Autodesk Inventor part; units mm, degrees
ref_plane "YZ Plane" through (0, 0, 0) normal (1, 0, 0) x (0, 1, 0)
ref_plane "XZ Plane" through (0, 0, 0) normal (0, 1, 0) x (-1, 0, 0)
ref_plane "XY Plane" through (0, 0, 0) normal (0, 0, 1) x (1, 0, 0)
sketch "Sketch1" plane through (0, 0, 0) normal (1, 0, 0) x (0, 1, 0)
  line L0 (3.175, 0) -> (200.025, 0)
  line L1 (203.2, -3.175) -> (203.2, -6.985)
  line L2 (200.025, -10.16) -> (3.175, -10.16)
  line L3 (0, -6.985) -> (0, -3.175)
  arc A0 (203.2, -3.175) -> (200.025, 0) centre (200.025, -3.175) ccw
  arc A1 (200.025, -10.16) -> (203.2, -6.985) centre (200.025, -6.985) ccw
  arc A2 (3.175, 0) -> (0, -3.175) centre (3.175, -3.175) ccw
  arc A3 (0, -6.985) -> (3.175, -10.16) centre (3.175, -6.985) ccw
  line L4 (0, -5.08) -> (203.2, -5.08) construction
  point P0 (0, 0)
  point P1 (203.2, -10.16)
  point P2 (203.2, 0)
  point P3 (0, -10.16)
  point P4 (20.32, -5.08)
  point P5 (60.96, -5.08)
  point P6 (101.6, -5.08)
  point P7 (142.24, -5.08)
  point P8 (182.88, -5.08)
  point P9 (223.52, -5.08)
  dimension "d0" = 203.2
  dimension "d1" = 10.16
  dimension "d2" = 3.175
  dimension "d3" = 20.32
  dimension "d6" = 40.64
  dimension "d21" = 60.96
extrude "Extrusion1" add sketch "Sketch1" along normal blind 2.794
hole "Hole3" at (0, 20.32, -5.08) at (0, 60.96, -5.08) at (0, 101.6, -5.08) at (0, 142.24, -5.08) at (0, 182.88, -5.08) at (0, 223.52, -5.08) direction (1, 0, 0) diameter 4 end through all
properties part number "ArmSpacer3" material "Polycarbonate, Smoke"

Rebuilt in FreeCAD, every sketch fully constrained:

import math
import FreeCAD as App
import Part
import Sketcher
Q = App.Units.Quantity

doc = App.newDocument("Part")
body = doc.addObject("PartDesign::Body", "Body")

# Sketch on YZ plane
sketch1 = body.newObject("Sketcher::SketchObject", "Sketch")
sketch1.AttachmentSupport = (doc.getObject("YZ_Plane"), [""])
sketch1.MapMode = "FlatFace"
sketch1.addGeometry([
    Part.LineSegment(App.Vector(200, 0, 0), App.Vector(3.2, 0, 0)),  # 0
    Part.ArcOfCircle(Part.Circle(App.Vector(3.2, -3.2, 0), App.Vector(0, 0, 1), 3.2), math.radians(90), math.radians(180)),  # 1
    Part.LineSegment(App.Vector(0, -3.2, 0), App.Vector(0, -7, 0)),  # 2
    Part.ArcOfCircle(Part.Circle(App.Vector(3.2, -7, 0), App.Vector(0, 0, 1), 3.2), math.radians(180), math.radians(270)),  # 3
    Part.LineSegment(App.Vector(3.2, -10.2, 0), App.Vector(200, -10.2, 0)),  # 4
    Part.ArcOfCircle(Part.Circle(App.Vector(200, -7, 0), App.Vector(0, 0, 1), 3.2), math.radians(-90), math.radians(0)),  # 5
    Part.LineSegment(App.Vector(203.2, -7, 0), App.Vector(203.2, -3.2, 0)),  # 6
    Part.ArcOfCircle(Part.Circle(App.Vector(200, -3.2, 0), App.Vector(0, 0, 1), 3.2), math.radians(0), math.radians(90)),  # 7
], False)
sketch1.addConstraint([
    Sketcher.Constraint("Tangent", 0, 2, 1, 1),
    Sketcher.Constraint("Tangent", 1, 2, 2, 1),
    Sketcher.Constraint("Tangent", 2, 2, 3, 1),
    Sketcher.Constraint("Tangent", 3, 2, 4, 1),
    Sketcher.Constraint("Tangent", 4, 2, 5, 1),
    Sketcher.Constraint("Tangent", 5, 2, 6, 1),
    Sketcher.Constraint("Tangent", 6, 2, 7, 1),
    Sketcher.Constraint("Tangent", 7, 2, 0, 1),
    Sketcher.Constraint("Horizontal", 0),
    Sketcher.Constraint("Vertical", 2),
    Sketcher.Constraint("Horizontal", 4),
    Sketcher.Constraint("Vertical", 6),
    Sketcher.Constraint("Equal", 1, 3),
    Sketcher.Constraint("Equal", 3, 5),
    Sketcher.Constraint("Equal", 5, 7),
    Sketcher.Constraint("PointOnObject", 0, 2, -1),
    Sketcher.Constraint("PointOnObject", 1, 2, -2),
    Sketcher.Constraint("DistanceX", -1, 1, 5, 2, Q("8 in")),
    Sketcher.Constraint("Radius", 1, Q("0.125 in")),
    Sketcher.Constraint("DistanceY", 3, 2, -1, 1, Q("0.4 in")),
])
pad1 = body.newObject("PartDesign::Pad", "Pad")
pad1.Profile = sketch1
pad1.Length = Q("0.11 in")

# Sketch on YZ plane
sketch2 = body.newObject("Sketcher::SketchObject", "Sketch001")
sketch2.AttachmentSupport = (doc.getObject("YZ_Plane"), [""])
sketch2.MapMode = "FlatFace"
sketch2.addGeometry([
    Part.Circle(App.Vector(20.3, -5.1, 0), App.Vector(0, 0, 1), 2),  # 0
    Part.Circle(App.Vector(61, -5.1, 0), App.Vector(0, 0, 1), 2),  # 1
    Part.Circle(App.Vector(101.6, -5.1, 0), App.Vector(0, 0, 1), 2),  # 2
    Part.Circle(App.Vector(142.2, -5.1, 0), App.Vector(0, 0, 1), 2),  # 3
    Part.Circle(App.Vector(182.9, -5.1, 0), App.Vector(0, 0, 1), 2),  # 4
    Part.Circle(App.Vector(223.5, -5.1, 0), App.Vector(0, 0, 1), 2),  # 5
], False)
sketch2.addConstraint([
    Sketcher.Constraint("Equal", 0, 1),
    Sketcher.Constraint("Equal", 1, 2),
    Sketcher.Constraint("Equal", 2, 3),
    Sketcher.Constraint("Equal", 3, 4),
    Sketcher.Constraint("Equal", 4, 5),
    Sketcher.Constraint("Horizontal", 0, 3, 1, 3),
    Sketcher.Constraint("Horizontal", 1, 3, 2, 3),
    Sketcher.Constraint("Horizontal", 2, 3, 3, 3),
    Sketcher.Constraint("Horizontal", 3, 3, 4, 3),
    Sketcher.Constraint("Horizontal", 4, 3, 5, 3),
    Sketcher.Constraint("DistanceX", -1, 1, 2, 3, Q("4 in")),
    Sketcher.Constraint("DistanceX", 0, 3, 5, 3, Q("8 in")),
    Sketcher.Constraint("DistanceX", -1, 1, 0, 3, Q("0.8 in")),
    Sketcher.Constraint("DistanceY", 0, 3, -1, 1, Q("0.2 in")),
    Sketcher.Constraint("DistanceX", -1, 1, 1, 3, Q("2.4 in")),
    Sketcher.Constraint("DistanceX", -1, 1, 3, 3, Q("5.6 in")),
    Sketcher.Constraint("DistanceX", -1, 1, 4, 3, Q("7.2 in")),
    Sketcher.Constraint("Diameter", 0, Q("4 mm")),
])
doc.recompute()
hole = body.newObject("PartDesign::Hole", "Hole")
hole.Profile = sketch2
hole.ThreadType = "None"
hole.Diameter = 4
hole.DepthType = "ThroughAll"
hole.Reversed = True

doc.recompute()
